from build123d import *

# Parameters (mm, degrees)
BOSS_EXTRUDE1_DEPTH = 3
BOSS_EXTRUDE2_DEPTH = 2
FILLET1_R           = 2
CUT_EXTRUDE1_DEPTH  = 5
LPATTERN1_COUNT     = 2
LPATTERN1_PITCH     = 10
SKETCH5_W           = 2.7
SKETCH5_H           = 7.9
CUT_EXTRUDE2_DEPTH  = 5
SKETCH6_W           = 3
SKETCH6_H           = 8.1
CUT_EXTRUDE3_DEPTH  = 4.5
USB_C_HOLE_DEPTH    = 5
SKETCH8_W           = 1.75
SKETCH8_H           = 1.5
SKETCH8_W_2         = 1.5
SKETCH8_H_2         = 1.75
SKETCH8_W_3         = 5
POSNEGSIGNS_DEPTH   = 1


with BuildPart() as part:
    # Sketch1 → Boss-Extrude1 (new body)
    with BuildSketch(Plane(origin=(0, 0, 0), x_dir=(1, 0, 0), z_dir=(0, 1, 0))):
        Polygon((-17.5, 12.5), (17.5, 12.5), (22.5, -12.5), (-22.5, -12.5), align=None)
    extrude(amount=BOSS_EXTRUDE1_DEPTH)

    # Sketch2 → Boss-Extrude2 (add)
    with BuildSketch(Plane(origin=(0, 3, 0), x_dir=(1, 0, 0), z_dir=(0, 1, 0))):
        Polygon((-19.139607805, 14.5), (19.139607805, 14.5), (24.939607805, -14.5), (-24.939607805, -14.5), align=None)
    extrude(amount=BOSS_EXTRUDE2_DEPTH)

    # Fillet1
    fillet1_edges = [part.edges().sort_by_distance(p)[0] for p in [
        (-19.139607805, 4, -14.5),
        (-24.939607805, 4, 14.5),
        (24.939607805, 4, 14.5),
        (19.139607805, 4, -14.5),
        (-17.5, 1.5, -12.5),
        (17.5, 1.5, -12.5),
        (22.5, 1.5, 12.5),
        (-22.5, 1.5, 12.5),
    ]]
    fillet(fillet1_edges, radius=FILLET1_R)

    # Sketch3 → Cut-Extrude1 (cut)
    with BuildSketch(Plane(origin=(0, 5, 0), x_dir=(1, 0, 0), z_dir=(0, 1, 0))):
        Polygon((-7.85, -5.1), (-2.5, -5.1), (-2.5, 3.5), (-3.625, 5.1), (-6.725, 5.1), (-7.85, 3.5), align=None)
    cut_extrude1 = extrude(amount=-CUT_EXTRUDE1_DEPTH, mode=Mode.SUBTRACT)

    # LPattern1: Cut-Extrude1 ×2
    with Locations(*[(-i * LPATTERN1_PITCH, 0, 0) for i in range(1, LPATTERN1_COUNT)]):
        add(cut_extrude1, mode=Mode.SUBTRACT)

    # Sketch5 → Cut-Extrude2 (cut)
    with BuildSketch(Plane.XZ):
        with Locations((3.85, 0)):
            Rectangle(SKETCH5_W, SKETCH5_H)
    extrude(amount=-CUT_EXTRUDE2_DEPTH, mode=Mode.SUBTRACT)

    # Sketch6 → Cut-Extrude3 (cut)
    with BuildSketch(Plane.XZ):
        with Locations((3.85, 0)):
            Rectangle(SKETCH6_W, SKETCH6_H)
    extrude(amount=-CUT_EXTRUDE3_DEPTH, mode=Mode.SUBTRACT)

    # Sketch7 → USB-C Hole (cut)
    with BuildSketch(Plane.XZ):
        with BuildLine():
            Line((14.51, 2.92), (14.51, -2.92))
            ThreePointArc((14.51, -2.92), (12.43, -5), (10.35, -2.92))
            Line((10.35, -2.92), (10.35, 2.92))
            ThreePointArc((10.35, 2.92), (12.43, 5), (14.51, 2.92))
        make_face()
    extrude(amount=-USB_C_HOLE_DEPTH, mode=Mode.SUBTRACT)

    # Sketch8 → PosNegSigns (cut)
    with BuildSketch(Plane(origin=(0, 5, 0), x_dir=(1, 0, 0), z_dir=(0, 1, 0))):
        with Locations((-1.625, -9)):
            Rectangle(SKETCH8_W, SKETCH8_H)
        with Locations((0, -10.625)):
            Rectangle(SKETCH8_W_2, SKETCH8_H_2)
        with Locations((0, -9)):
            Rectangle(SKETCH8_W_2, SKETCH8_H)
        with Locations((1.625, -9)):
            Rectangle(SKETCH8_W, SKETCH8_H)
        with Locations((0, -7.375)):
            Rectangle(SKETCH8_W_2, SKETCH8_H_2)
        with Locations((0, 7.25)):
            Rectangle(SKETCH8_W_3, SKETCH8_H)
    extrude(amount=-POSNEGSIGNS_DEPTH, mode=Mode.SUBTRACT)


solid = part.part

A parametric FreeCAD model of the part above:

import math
import FreeCAD as App
import Part
import Sketcher

V = App.Vector
Q = App.Units.Quantity


def edges_at(feature, points):
    """Names of the edges that pass closest to the given points."""
    edges = feature.Shape.Edges
    near = lambda p: min(range(len(edges)), key=lambda i: edges[i].distToShape(Part.Vertex(*p))[0])
    return sorted({f"Edge{near(p) + 1}" for p in points})


def add_polygon(sketch, points):
    """Adds a closed chain of lines whose ends are joined by coincident constraints."""
    first, n = sketch.GeometryCount, len(points)
    for a, b in zip(points, points[1:] + points[:1]):
        sketch.addGeometry(Part.LineSegment(App.Vector(*a, 0), App.Vector(*b, 0)), False)
    for i in range(n):
        sketch.addConstraint(Sketcher.Constraint("Coincident", first + i, 2, first + (i + 1) % n, 1))

doc = App.newDocument("Part")
params = doc.addObject("Spreadsheet::Sheet", "Params")
for row, (alias, value) in enumerate([
    ("sketch1_width", "35 mm"),
    ("sketch1_width2", "45 mm"),
    ("pad1_length", "3 mm"),
    ("pad2_length", "2 mm"),
    ("fillet_radius", "2 mm"),
    ("sketch3_width", "3.1 mm"),
    ("sketch3_height", "8.6 mm"),
    ("sketch3_width2", "5.35 mm"),
    ("pocket1_length", "5 mm"),
    ("linearpattern_pitch", "10 mm"),
    ("sketch4_width", "2.7 mm"),
    ("sketch4_height", "7.9 mm"),
    ("pocket2_length", "5 mm"),
    ("sketch5_width", "3 mm"),
    ("sketch5_height", "8.1 mm"),
    ("pocket3_length", "4.5 mm"),
    ("sketch6_radius", "2.08 mm"),
    ("sketch6_height", "5.84 mm"),
    ("pocket4_length", "5 mm"),
    ("sketch7_width", "5 mm"),
    ("sketch7_width2", "1.5 mm"),
    ("pocket5_length", "1 mm"),
], start=1):
    params.set(f"A{row}", alias)
    params.set(f"B{row}", "=" + value)
    params.setAlias(f"B{row}", alias)

body = doc.addObject("PartDesign::Body", "Body")

# Sketch on XZ plane
sketch1 = body.newObject("Sketcher::SketchObject", "Sketch")
sketch1.AttachmentSupport = (doc.getObject("XZ_Plane"), [""])
sketch1.MapMode = "FlatFace"
add_polygon(sketch1, [(18, -12), (-18, -12), (-22, 12), (22, 12)])  # lines 0-3
sketch1.addConstraint([
    Sketcher.Constraint("Horizontal", 0),
    Sketcher.Constraint("Horizontal", 2),
    Sketcher.Constraint("Equal", 1, 3),
    Sketcher.Constraint("DistanceX", 0, 2, 0, 1, Q("35 mm")),
    Sketcher.Constraint("DistanceX", 2, 1, 2, 2, Q("45 mm")),
    Sketcher.Constraint("DistanceY", 0, 2, 1, 2, Q("25 mm")),
    Sketcher.Constraint("DistanceX", 0, 2, -1, 1, Q("17.5 mm")),
    Sketcher.Constraint("DistanceY", 0, 2, -1, 1, Q("12.5 mm")),
])
sketch1.setExpression("Constraints[7]", "Params.sketch1_width")
sketch1.setExpression("Constraints[8]", "Params.sketch1_width2")
pad1 = body.newObject("PartDesign::Pad", "Pad")
pad1.Profile = sketch1
pad1.setExpression("Length", "Params.pad1_length")
pad1.Reversed = True

# Sketch on XZ plane
sketch2 = body.newObject("Sketcher::SketchObject", "Sketch001")
sketch2.AttachmentSupport = (doc.getObject("XZ_Plane"), [""])
sketch2.MapMode = "FlatFace"
sketch2.AttachmentOffset = App.Placement(V(0, 0, -3), App.Rotation())
add_polygon(sketch2, [(19, -14), (-19, -14), (-25, 14), (25, 14)])  # lines 0-3
sketch2.addConstraint([
    Sketcher.Constraint("Horizontal", 0),
    Sketcher.Constraint("Horizontal", 2),
    Sketcher.Constraint("Equal", 1, 3),
    Sketcher.Constraint("DistanceY", 0, 2, 1, 2, Q("29 mm")),
    Sketcher.Constraint("DistanceY", 0, 2, -1, 1, Q("14.5 mm")),
    Sketcher.Constraint("DistanceX", 1, 2, 0, 2, Q("5.8 mm")),
    Sketcher.Constraint("DistanceX", 0, 2, 0, 1, Q("38.279216 mm")),
    Sketcher.Constraint("DistanceX", 0, 2, -1, 1, Q("19.139608 mm")),
])
pad2 = body.newObject("PartDesign::Pad", "Pad001")
pad2.Profile = sketch2
pad2.setExpression("Length", "Params.pad2_length")
pad2.Reversed = True
doc.recompute()

fillet = body.newObject("PartDesign::Fillet", "Fillet")
fillet.Base = (pad2, edges_at(pad2, [
    (-19.14, 4, -14.5),
    (-24.94, 4, 14.5),
    (24.94, 4, 14.5),
    (19.14, 4, -14.5),
    (-17.5, 1.5, -12.5),
    (17.5, 1.5, -12.5),
    (22.5, 1.5, 12.5),
    (-22.5, 1.5, 12.5),
]))
fillet.setExpression("Radius", "Params.fillet_radius")

# Sketch on XZ plane
sketch3 = body.newObject("Sketcher::SketchObject", "Sketch002")
sketch3.AttachmentSupport = (doc.getObject("XZ_Plane"), [""])
sketch3.MapMode = "FlatFace"
sketch3.AttachmentOffset = App.Placement(V(0, 0, -5), App.Rotation())
add_polygon(sketch3, [(-7.8, 5.1), (-2.5, 5.1), (-2.5, -3.5), (-3.6, -5.1), (-6.7, -5.1), (-7.8, -3.5)])  # lines 0-5
sketch3.addConstraint([
    Sketcher.Constraint("Horizontal", 0),
    Sketcher.Constraint("Vertical", 1),
    Sketcher.Constraint("Horizontal", 3),
    Sketcher.Constraint("Vertical", 5),
    Sketcher.Constraint("Horizontal", 1, 2, 4, 2),
    Sketcher.Constraint("Equal", 2, 4),
    Sketcher.Constraint("DistanceX", 3, 2, 3, 1, Q("3.1 mm")),
    Sketcher.Constraint("DistanceY", 1, 2, 1, 1, Q("8.6 mm")),
    Sketcher.Constraint("DistanceX", 0, 1, 0, 2, Q("5.35 mm")),
    Sketcher.Constraint("DistanceX", 0, 2, -1, 1, Q("2.5 mm")),
    Sketcher.Constraint("DistanceY", -1, 1, 0, 2, Q("5.1 mm")),
    Sketcher.Constraint("DistanceY", 2, 2, -1, 1, Q("5.1 mm")),
])
sketch3.setExpression("Constraints[12]", "Params.sketch3_width")
sketch3.setExpression("Constraints[13]", "Params.sketch3_height")
sketch3.setExpression("Constraints[14]", "Params.sketch3_width2")
pocket1 = body.newObject("PartDesign::Pocket", "Pocket")
pocket1.Profile = sketch3
pocket1.setExpression("Length", "Params.pocket1_length")
pocket1.Reversed = True
doc.recompute()

linearpattern = body.newObject("PartDesign::LinearPattern", "LinearPattern")
linearpattern.Originals = [pocket1]
linearpattern.Direction = (doc.getObject("X_Axis"), [""])
linearpattern.Mode = "offset"
linearpattern.setExpression("Offset", "Params.linearpattern_pitch")
linearpattern.Occurrences = 2
linearpattern.Reversed = True
body.Tip = linearpattern

# Sketch on XZ plane
sketch4 = body.newObject("Sketcher::SketchObject", "Sketch003")
sketch4.AttachmentSupport = (doc.getObject("XZ_Plane"), [""])
sketch4.MapMode = "FlatFace"
add_polygon(sketch4, [(2.5, 4), (2.5, -4), (5.2, -4), (5.2, 4)])  # lines 0-3
sketch4.addConstraint([
    Sketcher.Constraint("Vertical", 0),
    Sketcher.Constraint("Horizontal", 1),
    Sketcher.Constraint("Vertical", 2),
    Sketcher.Constraint("Horizontal", 3),
    Sketcher.Constraint("DistanceX", 1, 1, 1, 2, Q("2.7 mm")),
    Sketcher.Constraint("DistanceY", 0, 2, 0, 1, Q("7.9 mm")),
    Sketcher.Constraint("DistanceX", -1, 1, 0, 2, Q("2.5 mm")),
    Sketcher.Constraint("DistanceY", 0, 2, -1, 1, Q("3.95 mm")),
])
sketch4.setExpression("Constraints[8]", "Params.sketch4_width")
sketch4.setExpression("Constraints[9]", "Params.sketch4_height")
pocket2 = body.newObject("PartDesign::Pocket", "Pocket001")
pocket2.Profile = sketch4
pocket2.setExpression("Length", "Params.pocket2_length")

# Sketch on XZ plane
sketch5 = body.newObject("Sketcher::SketchObject", "Sketch004")
sketch5.AttachmentSupport = (doc.getObject("XZ_Plane"), [""])
sketch5.MapMode = "FlatFace"
add_polygon(sketch5, [(2.4, 4), (2.4, -4), (5.3, -4), (5.3, 4)])  # lines 0-3
sketch5.addConstraint([
    Sketcher.Constraint("Vertical", 0),
    Sketcher.Constraint("Horizontal", 1),
    Sketcher.Constraint("Vertical", 2),
    Sketcher.Constraint("Horizontal", 3),
    Sketcher.Constraint("DistanceX", 1, 1, 1, 2, Q("3 mm")),
    Sketcher.Constraint("DistanceY", 0, 2, 0, 1, Q("8.1 mm")),
    Sketcher.Constraint("DistanceX", -1, 1, 0, 2, Q("2.35 mm")),
    Sketcher.Constraint("DistanceY", 0, 2, -1, 1, Q("4.05 mm")),
])
sketch5.setExpression("Constraints[8]", "Params.sketch5_width")
sketch5.setExpression("Constraints[9]", "Params.sketch5_height")
pocket3 = body.newObject("PartDesign::Pocket", "Pocket002")
pocket3.Profile = sketch5
pocket3.setExpression("Length", "Params.pocket3_length")

# Sketch on XZ plane
sketch6 = body.newObject("Sketcher::SketchObject", "Sketch005")
sketch6.AttachmentSupport = (doc.getObject("XZ_Plane"), [""])
sketch6.MapMode = "FlatFace"
sketch6.addGeometry([
    Part.LineSegment(V(14.5, -2.9, 0), V(14.5, 2.9, 0)),
    Part.ArcOfCircle(Part.Circle(V(12.4, 2.9, 0), V(0, 0, 1), 2.1), math.radians(0), math.radians(180)),
    Part.LineSegment(V(10.3, 2.9, 0), V(10.3, -2.9, 0)),
    Part.ArcOfCircle(Part.Circle(V(12.4, -2.9, 0), V(0, 0, 1), 2.1), math.radians(180), math.radians(360)),
], False)
sketch6.addConstraint([
    Sketcher.Constraint("Tangent", 0, 2, 1, 1),
    Sketcher.Constraint("Tangent", 1, 2, 2, 1),
    Sketcher.Constraint("Tangent", 2, 2, 3, 1),
    Sketcher.Constraint("Tangent", 3, 2, 0, 1),
    Sketcher.Constraint("Vertical", 0),
    Sketcher.Constraint("Vertical", 2),
    Sketcher.Constraint("Radius", 1, Q("2.08 mm")),
    Sketcher.Constraint("DistanceY", 0, 1, 0, 2, Q("5.84 mm")),
    Sketcher.Constraint("DistanceX", -1, 1, 1, 3, Q("12.43 mm")),
    Sketcher.Constraint("DistanceY", -1, 1, 1, 3, Q("2.92 mm")),
])
sketch6.setExpression("Constraints[6]", "Params.sketch6_radius")
sketch6.setExpression("Constraints[7]", "Params.sketch6_height")
pocket4 = body.newObject("PartDesign::Pocket", "Pocket003")
pocket4.Profile = sketch6
pocket4.setExpression("Length", "Params.pocket4_length")

# Sketch on XZ plane
sketch7 = body.newObject("Sketcher::SketchObject", "Sketch006")
sketch7.AttachmentSupport = (doc.getObject("XZ_Plane"), [""])
sketch7.MapMode = "FlatFace"
sketch7.AttachmentOffset = App.Placement(V(0, 0, -5), App.Rotation())
add_polygon(sketch7, [(-2.5, 8.2), (-2.5, 9.8), (-0.8, 9.8), (-0.8, 11.5), (0.8, 11.5), (0.8, 9.8), (2.5, 9.8), (2.5, 8.2), (0.8, 8.2), (0.8, 6.5), (-0.8, 6.5), (-0.8, 8.2)])  # lines 0-11
add_polygon(sketch7, [(-2.5, -8), (-2.5, -6.5), (2.5, -6.5), (2.5, -8)])  # lines 12-15
sketch7.addConstraint([
    Sketcher.Constraint("Vertical", 0),
    Sketcher.Constraint("Horizontal", 1),
    Sketcher.Constraint("Vertical", 2),
    Sketcher.Constraint("Horizontal", 3),
    Sketcher.Constraint("Vertical", 4),
    Sketcher.Constraint("Horizontal", 5),
    Sketcher.Constraint("Vertical", 6),
    Sketcher.Constraint("Horizontal", 7),
    Sketcher.Constraint("Vertical", 8),
    Sketcher.Constraint("Horizontal", 9),
    Sketcher.Constraint("Vertical", 10),
    Sketcher.Constraint("Horizontal", 11),
    Sketcher.Constraint("Vertical", 12),
    Sketcher.Constraint("Horizontal", 13),
    Sketcher.Constraint("Vertical", 14),
    Sketcher.Constraint("Horizontal", 15),
    Sketcher.Constraint("Symmetric", 1, 2, 4, 2, -2),
    Sketcher.Constraint("Symmetric", 7, 2, 10, 2, -2),
    Sketcher.Constraint("Vertical", 4, 2, 7, 2),
    Sketcher.Constraint("Vertical", 11, 2, 12, 2),
    Sketcher.Constraint("Vertical", 6, 2, 13, 2),
    Sketcher.Constraint("Equal", 1, 5),
    Sketcher.Constraint("Equal", 9, 0),
    Sketcher.Constraint("Equal", 11, 2),
    Sketcher.Constraint("Equal", 4, 8),
    Sketcher.Constraint("Equal", 6, 12),
    Sketcher.Constraint("DistanceX", 13, 1, 13, 2, Q("5 mm")),
    Sketcher.Constraint("DistanceX", 3, 1, 3, 2, Q("1.5 mm")),
    Sketcher.Constraint("DistanceY", 14, 2, -1, 1, Q("8 mm")),
    Sketcher.Constraint("DistanceY", 12, 2, 9, 2, Q("13 mm")),
])
sketch7.setExpression("Constraints[42]", "Params.sketch7_width")
sketch7.setExpression("Constraints[43]", "Params.sketch7_width2")
pocket5 = body.newObject("PartDesign::Pocket", "Pocket004")
pocket5.Profile = sketch7
pocket5.setExpression("Length", "Params.pocket5_length")
pocket5.Reversed = True

doc.recompute()
